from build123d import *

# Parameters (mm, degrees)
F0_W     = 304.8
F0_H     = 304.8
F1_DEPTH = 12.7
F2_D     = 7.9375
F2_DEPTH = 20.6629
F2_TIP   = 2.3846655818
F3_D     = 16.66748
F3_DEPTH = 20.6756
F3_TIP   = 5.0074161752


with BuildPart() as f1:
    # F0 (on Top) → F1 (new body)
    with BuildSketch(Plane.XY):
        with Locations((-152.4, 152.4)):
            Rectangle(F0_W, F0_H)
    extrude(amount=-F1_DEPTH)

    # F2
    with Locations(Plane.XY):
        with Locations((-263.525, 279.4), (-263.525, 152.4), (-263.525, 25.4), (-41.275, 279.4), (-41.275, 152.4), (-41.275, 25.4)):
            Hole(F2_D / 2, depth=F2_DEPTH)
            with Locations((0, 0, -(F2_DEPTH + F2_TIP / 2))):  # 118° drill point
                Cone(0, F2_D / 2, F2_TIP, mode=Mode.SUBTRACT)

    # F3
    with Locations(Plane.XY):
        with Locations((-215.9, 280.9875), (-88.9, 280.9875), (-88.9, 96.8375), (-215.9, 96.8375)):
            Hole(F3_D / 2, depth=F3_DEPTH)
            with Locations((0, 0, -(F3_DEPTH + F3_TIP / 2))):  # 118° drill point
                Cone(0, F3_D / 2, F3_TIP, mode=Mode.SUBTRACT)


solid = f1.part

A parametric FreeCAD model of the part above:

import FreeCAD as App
import Part
import Sketcher

V = App.Vector
Q = App.Units.Quantity


def add_polygon(sketch, points):
    """Adds a closed chain of lines whose ends are joined by coincident constraints."""
    first, n = sketch.GeometryCount, len(points)
    for a, b in zip(points, points[1:] + points[:1]):
        sketch.addGeometry(Part.LineSegment(App.Vector(*a, 0), App.Vector(*b, 0)), False)
    for i in range(n):
        sketch.addConstraint(Sketcher.Constraint("Coincident", first + i, 2, first + (i + 1) % n, 1))

doc = App.newDocument("Part")
body = doc.addObject("PartDesign::Body", "Body")

# Sketch on XY plane
sketch1 = doc.addObject("Sketcher::SketchObject", "Sketch")
body.addObject(sketch1)
sketch1.AttachmentSupport = (doc.XY_Plane, [""])
sketch1.MapMode = "FlatFace"
add_polygon(sketch1, [(-305, 305), (-305, 0), (0, 0), (0, 305)])  # lines 0-3
sketch1.addConstraint([
    Sketcher.Constraint("Vertical", 0),
    Sketcher.Constraint("Horizontal", 1),
    Sketcher.Constraint("Vertical", 2),
    Sketcher.Constraint("Horizontal", 3),
    Sketcher.Constraint("Coincident", 1, 2, -1, 1),
    Sketcher.Constraint("Equal", 3, 0),
    Sketcher.Constraint("DistanceX", 1, 1, 1, 2, Q("12 in")),
])
pad1 = doc.addObject("PartDesign::Pad", "Pad")
body.addObject(pad1)
pad1.Profile = sketch1
pad1.Length = Q("0.5 in")
pad1.Reversed = True

# Sketch on XY plane
sketch2 = doc.addObject("Sketcher::SketchObject", "Sketch001")
body.addObject(sketch2)
sketch2.AttachmentSupport = (doc.XY_Plane, [""])
sketch2.MapMode = "FlatFace"
sketch2.addGeometry([
    Part.Circle(V(-263.5, 279.4, 0), V(0, 0, 1), 4),  # 0
    Part.Circle(V(-263.5, 152.4, 0), V(0, 0, 1), 4),  # 1
    Part.Circle(V(-263.5, 25.4, 0), V(0, 0, 1), 4),  # 2
    Part.Circle(V(-41.3, 279.4, 0), V(0, 0, 1), 4),  # 3
    Part.Circle(V(-41.3, 152.4, 0), V(0, 0, 1), 4),  # 4
    Part.Circle(V(-41.3, 25.4, 0), V(0, 0, 1), 4),  # 5
], False)
sketch2.addConstraint([
    Sketcher.Constraint("Equal", 0, 1),
    Sketcher.Constraint("Equal", 1, 2),
    Sketcher.Constraint("Equal", 2, 3),
    Sketcher.Constraint("Equal", 3, 4),
    Sketcher.Constraint("Equal", 4, 5),
    Sketcher.Constraint("Horizontal", 0, 3, 3, 3),
    Sketcher.Constraint("Horizontal", 1, 3, 4, 3),
    Sketcher.Constraint("Horizontal", 2, 3, 5, 3),
    Sketcher.Constraint("Vertical", 0, 3, 1, 3),
    Sketcher.Constraint("Vertical", 1, 3, 2, 3),
    Sketcher.Constraint("Vertical", 3, 3, 4, 3),
    Sketcher.Constraint("Vertical", 4, 3, 5, 3),
    Sketcher.Constraint("Diameter", 0, Q("0.3125 in")),
    Sketcher.Constraint("DistanceY", -1, 1, 0, 3, Q("11 in")),
    Sketcher.Constraint("DistanceY", -1, 1, 1, 3, Q("6 in")),
    Sketcher.Constraint("DistanceY", -1, 1, 2, 3, Q("1 in")),
    Sketcher.Constraint("DistanceX", 0, 3, 3, 3, Q("8.75 in")),
    Sketcher.Constraint("DistanceX", 0, 3, -1, 1, Q("10.375 in")),
])
doc.recompute()
hole = doc.addObject("PartDesign::Hole", "Hole")
body.addObject(hole)
hole.Profile = sketch2
hole.ThreadType = "None"
hole.Diameter = Q("0.3125 in")
hole.DepthType = "Dimension"
hole.Depth = Q("0.8135 in")
hole.DrillPoint = "Angled"
hole.DrillPointAngle = 118

# Sketch on XY plane
sketch3 = doc.addObject("Sketcher::SketchObject", "Sketch002")
body.addObject(sketch3)
sketch3.AttachmentSupport = (doc.XY_Plane, [""])
sketch3.MapMode = "FlatFace"
sketch3.addGeometry([
    Part.Circle(V(-216, 281, 0), V(0, 0, 1), 8),
    Part.Circle(V(-89, 281, 0), V(0, 0, 1), 8),
    Part.Circle(V(-89, 97, 0), V(0, 0, 1), 8),
    Part.Circle(V(-216, 97, 0), V(0, 0, 1), 8),
], False)
sketch3.addConstraint([
    Sketcher.Constraint("Equal", 0, 1),
    Sketcher.Constraint("Equal", 1, 2),
    Sketcher.Constraint("Equal", 2, 3),
    Sketcher.Constraint("Horizontal", 0, 3, 1, 3),
    Sketcher.Constraint("Horizontal", 2, 3, 3, 3),
    Sketcher.Constraint("Vertical", 1, 3, 2, 3),
    Sketcher.Constraint("Vertical", 0, 3, 3, 3),
    Sketcher.Constraint("DistanceX", 0, 3, 1, 3, Q("5 in")),
    Sketcher.Constraint("Diameter", 0, Q("0.6562 in")),
    Sketcher.Constraint("DistanceX", 0, 3, -1, 1, Q("8.5 in")),
    Sketcher.Constraint("DistanceY", 2, 3, 1, 3, Q("7.25 in")),
    Sketcher.Constraint("DistanceY", -1, 1, 0, 3, Q("11.0625 in")),
])
doc.recompute()
hole2 = doc.addObject("PartDesign::Hole", "Hole001")
body.addObject(hole2)
hole2.Profile = sketch3
hole2.ThreadType = "None"
hole2.Diameter = Q("0.6562 in")
hole2.DepthType = "Dimension"
hole2.Depth = Q("0.814 in")
hole2.DrillPoint = "Angled"
hole2.DrillPointAngle = 118

doc.recompute()
